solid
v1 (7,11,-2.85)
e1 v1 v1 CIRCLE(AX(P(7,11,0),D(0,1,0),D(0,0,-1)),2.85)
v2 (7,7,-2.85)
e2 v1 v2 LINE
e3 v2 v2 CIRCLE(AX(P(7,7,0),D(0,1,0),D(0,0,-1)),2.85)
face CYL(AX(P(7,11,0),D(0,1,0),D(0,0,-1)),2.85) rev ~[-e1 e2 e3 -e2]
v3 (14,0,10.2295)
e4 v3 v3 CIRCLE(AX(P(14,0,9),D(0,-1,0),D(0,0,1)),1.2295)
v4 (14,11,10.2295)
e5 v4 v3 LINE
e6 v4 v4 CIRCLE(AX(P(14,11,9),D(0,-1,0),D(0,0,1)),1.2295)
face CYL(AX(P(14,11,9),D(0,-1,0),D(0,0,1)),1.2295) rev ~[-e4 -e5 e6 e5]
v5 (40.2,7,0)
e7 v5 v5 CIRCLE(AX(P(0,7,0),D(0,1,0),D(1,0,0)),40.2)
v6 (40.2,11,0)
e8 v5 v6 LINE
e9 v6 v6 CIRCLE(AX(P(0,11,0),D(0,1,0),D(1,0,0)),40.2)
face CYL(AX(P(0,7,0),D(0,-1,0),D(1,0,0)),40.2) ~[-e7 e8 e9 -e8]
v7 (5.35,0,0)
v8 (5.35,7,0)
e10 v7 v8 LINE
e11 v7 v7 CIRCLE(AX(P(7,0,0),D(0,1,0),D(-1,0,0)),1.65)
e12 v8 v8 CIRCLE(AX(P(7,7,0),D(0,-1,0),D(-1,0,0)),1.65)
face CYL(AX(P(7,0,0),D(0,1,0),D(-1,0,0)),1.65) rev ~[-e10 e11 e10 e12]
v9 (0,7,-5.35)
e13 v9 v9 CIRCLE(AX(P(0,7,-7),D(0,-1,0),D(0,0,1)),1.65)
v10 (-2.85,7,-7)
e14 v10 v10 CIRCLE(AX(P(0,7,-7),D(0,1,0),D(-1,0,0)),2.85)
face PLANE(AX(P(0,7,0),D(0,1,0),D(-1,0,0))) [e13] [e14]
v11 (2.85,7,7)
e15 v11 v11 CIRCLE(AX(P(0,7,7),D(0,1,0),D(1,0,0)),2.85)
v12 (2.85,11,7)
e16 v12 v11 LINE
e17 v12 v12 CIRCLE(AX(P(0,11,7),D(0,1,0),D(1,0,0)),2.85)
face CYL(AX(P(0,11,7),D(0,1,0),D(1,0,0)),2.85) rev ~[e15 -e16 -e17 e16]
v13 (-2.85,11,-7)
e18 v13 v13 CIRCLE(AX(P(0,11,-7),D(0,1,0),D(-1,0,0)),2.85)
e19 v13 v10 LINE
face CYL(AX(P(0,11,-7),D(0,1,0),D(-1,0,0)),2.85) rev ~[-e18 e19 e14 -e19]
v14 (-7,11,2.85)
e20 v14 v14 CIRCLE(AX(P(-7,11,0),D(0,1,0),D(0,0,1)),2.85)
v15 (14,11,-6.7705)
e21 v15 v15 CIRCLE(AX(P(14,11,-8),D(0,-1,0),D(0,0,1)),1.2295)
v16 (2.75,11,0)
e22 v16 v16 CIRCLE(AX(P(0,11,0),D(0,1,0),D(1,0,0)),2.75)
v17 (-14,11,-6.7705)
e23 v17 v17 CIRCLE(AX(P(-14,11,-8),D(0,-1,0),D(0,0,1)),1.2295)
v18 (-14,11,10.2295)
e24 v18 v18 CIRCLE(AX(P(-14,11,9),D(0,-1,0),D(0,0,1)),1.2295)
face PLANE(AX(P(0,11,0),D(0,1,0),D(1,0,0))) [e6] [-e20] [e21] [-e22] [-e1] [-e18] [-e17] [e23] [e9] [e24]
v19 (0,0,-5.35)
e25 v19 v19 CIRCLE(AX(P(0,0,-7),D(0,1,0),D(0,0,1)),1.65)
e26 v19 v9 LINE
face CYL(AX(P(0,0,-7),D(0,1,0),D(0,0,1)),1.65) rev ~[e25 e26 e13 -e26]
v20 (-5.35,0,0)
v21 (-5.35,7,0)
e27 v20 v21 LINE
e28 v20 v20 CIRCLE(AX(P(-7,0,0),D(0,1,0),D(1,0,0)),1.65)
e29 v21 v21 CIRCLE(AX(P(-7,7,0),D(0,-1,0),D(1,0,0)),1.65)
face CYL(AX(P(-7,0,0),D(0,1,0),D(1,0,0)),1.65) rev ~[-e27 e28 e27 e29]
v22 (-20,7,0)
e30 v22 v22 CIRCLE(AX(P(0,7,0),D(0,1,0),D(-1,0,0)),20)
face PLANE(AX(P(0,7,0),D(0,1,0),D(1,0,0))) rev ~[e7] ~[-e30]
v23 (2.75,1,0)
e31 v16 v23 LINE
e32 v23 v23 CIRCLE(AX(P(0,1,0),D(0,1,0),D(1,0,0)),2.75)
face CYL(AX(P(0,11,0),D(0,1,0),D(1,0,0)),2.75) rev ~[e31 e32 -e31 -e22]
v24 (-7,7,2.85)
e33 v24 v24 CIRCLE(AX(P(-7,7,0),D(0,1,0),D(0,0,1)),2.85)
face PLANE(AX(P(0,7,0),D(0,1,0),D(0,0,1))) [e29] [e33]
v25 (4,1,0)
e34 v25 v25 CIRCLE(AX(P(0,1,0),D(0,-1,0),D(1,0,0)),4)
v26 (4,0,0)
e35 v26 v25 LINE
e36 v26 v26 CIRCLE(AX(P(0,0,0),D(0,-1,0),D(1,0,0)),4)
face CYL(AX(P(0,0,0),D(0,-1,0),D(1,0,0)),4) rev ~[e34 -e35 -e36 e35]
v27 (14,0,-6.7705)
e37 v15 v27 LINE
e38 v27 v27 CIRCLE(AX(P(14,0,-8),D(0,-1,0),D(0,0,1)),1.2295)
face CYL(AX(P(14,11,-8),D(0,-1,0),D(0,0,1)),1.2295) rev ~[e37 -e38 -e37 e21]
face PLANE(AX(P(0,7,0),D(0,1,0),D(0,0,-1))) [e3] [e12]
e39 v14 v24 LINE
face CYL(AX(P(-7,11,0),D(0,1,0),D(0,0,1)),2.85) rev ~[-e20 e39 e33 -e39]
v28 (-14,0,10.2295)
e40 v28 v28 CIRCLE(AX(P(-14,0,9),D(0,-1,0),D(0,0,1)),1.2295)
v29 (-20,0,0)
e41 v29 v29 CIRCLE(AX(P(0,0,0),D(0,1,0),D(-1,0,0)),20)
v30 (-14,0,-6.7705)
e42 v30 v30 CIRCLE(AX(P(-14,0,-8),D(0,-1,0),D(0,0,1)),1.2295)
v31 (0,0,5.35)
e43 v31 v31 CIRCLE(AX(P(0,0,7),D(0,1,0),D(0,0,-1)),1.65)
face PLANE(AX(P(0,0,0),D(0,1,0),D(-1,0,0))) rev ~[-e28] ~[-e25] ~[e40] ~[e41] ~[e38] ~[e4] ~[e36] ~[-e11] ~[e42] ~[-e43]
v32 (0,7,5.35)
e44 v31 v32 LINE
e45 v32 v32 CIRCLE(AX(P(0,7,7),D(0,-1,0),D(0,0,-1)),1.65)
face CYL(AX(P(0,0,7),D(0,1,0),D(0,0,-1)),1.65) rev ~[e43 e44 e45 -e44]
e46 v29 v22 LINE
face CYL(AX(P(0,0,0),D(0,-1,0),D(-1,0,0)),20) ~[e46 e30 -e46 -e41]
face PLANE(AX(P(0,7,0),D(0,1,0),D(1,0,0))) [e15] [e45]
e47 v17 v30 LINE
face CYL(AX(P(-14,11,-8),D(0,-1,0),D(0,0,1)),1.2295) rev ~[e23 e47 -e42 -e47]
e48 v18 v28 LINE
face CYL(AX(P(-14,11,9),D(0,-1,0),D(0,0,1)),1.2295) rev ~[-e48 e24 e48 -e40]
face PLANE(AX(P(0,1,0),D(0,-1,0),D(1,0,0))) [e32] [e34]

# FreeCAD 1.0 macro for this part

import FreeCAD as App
import Part
import Sketcher

V = App.Vector

doc = App.newDocument("Part")
body = doc.addObject("PartDesign::Body", "Body")

# Sketch on XZ plane
sketch1 = body.newObject("Sketcher::SketchObject", "Sketch")
sketch1.AttachmentSupport = (doc.getObject("XZ_Plane"), [""])
sketch1.MapMode = "FlatFace"
sketch1.addGeometry(Part.Circle(V(0, 0, 0), V(0, 0, 1), 20), False)
sketch1.addConstraint([
    Sketcher.Constraint("Coincident", 0, 3, -1, 1),
    Sketcher.Constraint("Diameter", 0, 40.0),
])
pad1 = body.newObject("PartDesign::Pad", "Pad")
pad1.Profile = sketch1
pad1.Length = 7
pad1.Reversed = True

# Sketch on XZ plane
sketch2 = body.newObject("Sketcher::SketchObject", "Sketch001")
sketch2.AttachmentSupport = (doc.getObject("XZ_Plane"), [""])
sketch2.MapMode = "FlatFace"
sketch2.AttachmentOffset = App.Placement(V(0, 0, -7), App.Rotation())
sketch2.addGeometry(Part.Circle(V(0, 0, 0), V(0, 0, 1), 40), False)
sketch2.addConstraint([
    Sketcher.Constraint("Coincident", 0, 3, -1, 1),
    Sketcher.Constraint("Diameter", 0, 80.4),
])
pad2 = body.newObject("PartDesign::Pad", "Pad001")
pad2.Profile = sketch2
pad2.Length = 4
pad2.Reversed = True

# Sketch on XZ plane
sketch3 = body.newObject("Sketcher::SketchObject", "Sketch002")
sketch3.AttachmentSupport = (doc.getObject("XZ_Plane"), [""])
sketch3.MapMode = "FlatFace"
sketch3.addGeometry(Part.Circle(V(0, 7, 0), V(0, 0, 1), 1.6), False)
sketch3.addConstraint([
    Sketcher.Constraint("PointOnObject", 0, 3, -2),
    Sketcher.Constraint("Diameter", 0, 3.3),
    Sketcher.Constraint("DistanceY", -1, 1, 0, 3, 7.0),
])
doc.recompute()
hole = body.newObject("PartDesign::Hole", "Hole")
hole.Profile = sketch3
hole.ThreadType = "None"
hole.Diameter = 3.3
hole.DepthType = "ThroughAll"
doc.recompute()

polarpattern = body.newObject("PartDesign::PolarPattern", "PolarPattern")
polarpattern.Originals = [hole]
polarpattern.Axis = (doc.getObject("Y_Axis"), [""])
polarpattern.Angle = 360
polarpattern.Occurrences = 4
body.Tip = polarpattern

# Sketch on XZ plane
sketch4 = body.newObject("Sketcher::SketchObject", "Sketch003")
sketch4.AttachmentSupport = (doc.getObject("XZ_Plane"), [""])
sketch4.MapMode = "FlatFace"
sketch4.AttachmentOffset = App.Placement(V(0, 0, -11), App.Rotation())
sketch4.addGeometry(Part.Circle(V(0, 0, 0), V(0, 0, 1), 2.8), False)
sketch4.addConstraint([
    Sketcher.Constraint("Coincident", 0, 3, -1, 1),
    Sketcher.Constraint("Diameter", 0, 5.5),
])
pocket1 = body.newObject("PartDesign::Pocket", "Pocket")
pocket1.Profile = sketch4
pocket1.Length = 11
pocket1.Reversed = True

# Sketch on XZ plane
sketch5 = body.newObject("Sketcher::SketchObject", "Sketch004")
sketch5.AttachmentSupport = (doc.getObject("XZ_Plane"), [""])
sketch5.MapMode = "FlatFace"
sketch5.addGeometry(Part.Circle(V(0, 0, 0), V(0, 0, 1), 4), False)
sketch5.addConstraint([
    Sketcher.Constraint("Coincident", 0, 3, -1, 1),
    Sketcher.Constraint("Diameter", 0, 8.0),
])
pocket2 = body.newObject("PartDesign::Pocket", "Pocket001")
pocket2.Profile = sketch5
pocket2.Length = 1

# Sketch on XZ plane
sketch6 = body.newObject("Sketcher::SketchObject", "Sketch005")
sketch6.AttachmentSupport = (doc.getObject("XZ_Plane"), [""])
sketch6.MapMode = "FlatFace"
sketch6.AttachmentOffset = App.Placement(V(0, 0, -11), App.Rotation())
sketch6.addGeometry([
    Part.Circle(V(0, 7, 0), V(0, 0, 1), 2.9),
    Part.Circle(V(0, 7, 0), V(0, 0, 1), 1.6),
], False)
sketch6.addConstraint([
    Sketcher.Constraint("Coincident", 1, 3, 0, 3),
    Sketcher.Constraint("PointOnObject", 0, 3, -2),
    Sketcher.Constraint("Diameter", 0, 5.7),
    Sketcher.Constraint("Diameter", 1, 3.3),
    Sketcher.Constraint("DistanceY", -1, 1, 0, 3, 7.0),
])
pocket3 = body.newObject("PartDesign::Pocket", "Pocket002")
pocket3.Profile = sketch6
pocket3.Length = 4
pocket3.Reversed = True
doc.recompute()

polarpattern2 = body.newObject("PartDesign::PolarPattern", "PolarPattern001")
polarpattern2.Originals = [pocket3]
polarpattern2.Axis = (doc.getObject("Y_Axis"), [""])
polarpattern2.Angle = 360
polarpattern2.Occurrences = 4
body.Tip = polarpattern2

# Sketch on XZ plane
sketch7 = body.newObject("Sketcher::SketchObject", "Sketch006")
sketch7.AttachmentSupport = (doc.getObject("XZ_Plane"), [""])
sketch7.MapMode = "FlatFace"
sketch7.AttachmentOffset = App.Placement(V(0, 0, -11), App.Rotation())
sketch7.addGeometry([
    Part.Circle(V(-14, 9, 0), V(0, 0, 1), 1.2),
    Part.Circle(V(14, 9, 0), V(0, 0, 1), 1.2),
    Part.Circle(V(14, -8, 0), V(0, 0, 1), 1.2),
    Part.Circle(V(-14, -8, 0), V(0, 0, 1), 1.2),
], False)
sketch7.addConstraint([
    Sketcher.Constraint("Equal", 0, 1),
    Sketcher.Constraint("Equal", 1, 2),
    Sketcher.Constraint("Equal", 2, 3),
    Sketcher.Constraint("Symmetric", 0, 3, 1, 3, -2),
    Sketcher.Constraint("Symmetric", 2, 3, 3, 3, -2),
    Sketcher.Constraint("Vertical", 1, 3, 2, 3),
    Sketcher.Constraint("Diameter", 0, 2.459),
    Sketcher.Constraint("DistanceX", 0, 3, -1, 1, 14.0),
    Sketcher.Constraint("DistanceY", -1, 1, 0, 3, 9.0),
    Sketcher.Constraint("DistanceY", 2, 3, -1, 1, 8.0),
])
doc.recompute()
hole2 = body.newObject("PartDesign::Hole", "Hole001")
hole2.Profile = sketch7
hole2.ThreadType = "None"
hole2.Diameter = 2.459
hole2.DepthType = "ThroughAll"
hole2.Reversed = True

doc.recompute()
